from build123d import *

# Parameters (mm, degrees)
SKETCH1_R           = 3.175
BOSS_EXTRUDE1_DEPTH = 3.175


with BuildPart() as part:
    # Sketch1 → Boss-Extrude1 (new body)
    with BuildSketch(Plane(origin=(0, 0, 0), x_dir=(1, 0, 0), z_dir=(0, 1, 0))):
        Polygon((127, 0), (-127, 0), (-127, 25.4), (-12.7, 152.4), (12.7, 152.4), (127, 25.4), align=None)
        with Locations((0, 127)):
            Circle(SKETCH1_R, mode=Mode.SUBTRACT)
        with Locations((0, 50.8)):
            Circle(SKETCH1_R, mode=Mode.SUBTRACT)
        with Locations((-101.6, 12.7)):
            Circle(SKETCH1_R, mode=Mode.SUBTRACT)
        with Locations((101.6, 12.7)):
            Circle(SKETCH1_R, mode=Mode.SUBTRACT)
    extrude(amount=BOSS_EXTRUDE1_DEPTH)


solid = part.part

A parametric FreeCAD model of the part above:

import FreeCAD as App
import Part
import Sketcher
from FreeCAD import Vector
Q = App.Units.Quantity

doc = App.newDocument("Part")
params = doc.addObject("Spreadsheet::Sheet", "Params")
for row, (alias, value) in enumerate([
    ("sketch1_diameter", "0.25 in"),
    ("sketch1_width", "10 in"),
    ("sketch1_width2", "1 in"),
    ("pad1_length", "0.125 in"),
], start=1):
    params.set(f"A{row}", alias)
    params.set(f"B{row}", "=" + value)
    params.setAlias(f"B{row}", alias)

body = doc.addObject("PartDesign::Body", "Body")

# Sketch on XZ plane
sketch1 = doc.addObject("Sketcher::SketchObject", "Sketch")
body.addObject(sketch1)
sketch1.AttachmentSupport = (doc.XZ_Plane, [""])
sketch1.MapMode = "FlatFace"
sketch1.addGeometry(Part.LineSegment(Vector(-127, 0, 0), Vector(127, 0, 0)), False)
sketch1.addGeometry(Part.LineSegment(Vector(127, 0, 0), Vector(127, -25.4, 0)), False)
sketch1.addGeometry(Part.LineSegment(Vector(127, -25.4, 0), Vector(12.7, -152.4, 0)), False)
sketch1.addGeometry(Part.LineSegment(Vector(12.7, -152.4, 0), Vector(-12.7, -152.4, 0)), False)
sketch1.addGeometry(Part.LineSegment(Vector(-12.7, -152.4, 0), Vector(-127, -25.4, 0)), False)
sketch1.addGeometry(Part.LineSegment(Vector(-127, -25.4, 0), Vector(-127, 0, 0)), False)
sketch1.addGeometry(Part.Circle(Vector(101.6, -12.7, 0), Vector(0, 0, 1), 3.175), False)
sketch1.addGeometry(Part.Circle(Vector(0, -50.8, 0), Vector(0, 0, 1), 3.175), False)
sketch1.addGeometry(Part.Circle(Vector(-101.6, -12.7, 0), Vector(0, 0, 1), 3.175), False)
sketch1.addGeometry(Part.Circle(Vector(0, -127, 0), Vector(0, 0, 1), 3.175), False)
sketch1.addConstraint(Sketcher.Constraint("Coincident", 0, 2, 1, 1))
sketch1.addConstraint(Sketcher.Constraint("Coincident", 1, 2, 2, 1))
sketch1.addConstraint(Sketcher.Constraint("Coincident", 2, 2, 3, 1))
sketch1.addConstraint(Sketcher.Constraint("Coincident", 3, 2, 4, 1))
sketch1.addConstraint(Sketcher.Constraint("Coincident", 4, 2, 5, 1))
sketch1.addConstraint(Sketcher.Constraint("Coincident", 5, 2, 0, 1))
sketch1.addConstraint(Sketcher.Constraint("Horizontal", 0))
sketch1.addConstraint(Sketcher.Constraint("Vertical", 1))
sketch1.addConstraint(Sketcher.Constraint("Horizontal", 3))
sketch1.addConstraint(Sketcher.Constraint("Vertical", 5))
sketch1.addConstraint(Sketcher.Constraint("Equal", 6, 7))
sketch1.addConstraint(Sketcher.Constraint("Equal", 7, 8))
sketch1.addConstraint(Sketcher.Constraint("Equal", 8, 9))
sketch1.addConstraint(Sketcher.Constraint("Symmetric", 0, 2, 5, 2, -1, 1))
sketch1.addConstraint(Sketcher.Constraint("Symmetric", 6, 3, 8, 3, -2))
sketch1.addConstraint(Sketcher.Constraint("PointOnObject", 7, 3, -2))
sketch1.addConstraint(Sketcher.Constraint("PointOnObject", 9, 3, -2))
sketch1.addConstraint(Sketcher.Constraint("Horizontal", 1, 2, 4, 2))
sketch1.addConstraint(Sketcher.Constraint("Equal", 3, 1))
sketch1.addConstraint(Sketcher.Constraint("Equal", 2, 4))
sketch1.addConstraint(Sketcher.Constraint("Diameter", 6, Q("0.25 in")))
sketch1.addConstraint(Sketcher.Constraint("DistanceX", 0, 1, 0, 2, Q("10 in")))
sketch1.addConstraint(Sketcher.Constraint("DistanceX", 3, 2, 3, 1, Q("1 in")))
sketch1.addConstraint(Sketcher.Constraint("DistanceX", -1, 1, 6, 3, Q("4 in")))
sketch1.addConstraint(Sketcher.Constraint("DistanceY", 7, 3, -1, 1, Q("2 in")))
sketch1.addConstraint(Sketcher.Constraint("DistanceY", 9, 3, -1, 1, Q("5 in")))
sketch1.addConstraint(Sketcher.Constraint("DistanceY", 2, 2, -1, 1, Q("6 in")))
sketch1.addConstraint(Sketcher.Constraint("DistanceY", 6, 3, -1, 1, Q("0.5 in")))
sketch1.setExpression("Constraints[20]", "Params.sketch1_diameter")
sketch1.setExpression("Constraints[21]", "Params.sketch1_width")
sketch1.setExpression("Constraints[22]", "Params.sketch1_width2")
pad1 = doc.addObject("PartDesign::Pad", "Pad")
body.addObject(pad1)
pad1.Profile = sketch1
pad1.setExpression("Length", "Params.pad1_length")
pad1.Reversed = True

doc.recompute()
